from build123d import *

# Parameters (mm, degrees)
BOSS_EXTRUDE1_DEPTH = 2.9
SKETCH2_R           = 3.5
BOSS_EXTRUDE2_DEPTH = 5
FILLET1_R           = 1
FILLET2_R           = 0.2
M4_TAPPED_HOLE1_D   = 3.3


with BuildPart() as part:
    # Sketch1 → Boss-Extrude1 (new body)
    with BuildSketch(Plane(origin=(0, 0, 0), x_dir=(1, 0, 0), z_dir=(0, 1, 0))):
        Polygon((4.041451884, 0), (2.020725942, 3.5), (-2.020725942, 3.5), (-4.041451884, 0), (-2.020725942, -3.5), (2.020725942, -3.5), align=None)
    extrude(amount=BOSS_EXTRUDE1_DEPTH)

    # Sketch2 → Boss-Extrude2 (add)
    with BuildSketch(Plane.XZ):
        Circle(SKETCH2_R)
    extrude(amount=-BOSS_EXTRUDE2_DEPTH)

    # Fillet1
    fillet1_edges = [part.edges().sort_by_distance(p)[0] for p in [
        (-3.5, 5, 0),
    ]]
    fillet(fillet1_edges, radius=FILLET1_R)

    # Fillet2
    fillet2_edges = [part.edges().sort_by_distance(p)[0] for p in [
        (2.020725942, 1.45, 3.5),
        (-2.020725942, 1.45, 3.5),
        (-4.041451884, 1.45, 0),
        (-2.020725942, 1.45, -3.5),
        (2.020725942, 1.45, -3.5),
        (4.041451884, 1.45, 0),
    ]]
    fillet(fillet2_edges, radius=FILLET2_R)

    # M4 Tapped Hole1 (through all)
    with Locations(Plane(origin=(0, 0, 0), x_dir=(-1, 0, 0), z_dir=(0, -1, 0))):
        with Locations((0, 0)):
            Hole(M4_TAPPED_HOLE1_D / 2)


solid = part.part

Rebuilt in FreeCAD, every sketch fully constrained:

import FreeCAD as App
import Part
import Sketcher
Q = App.Units.Quantity


def edges_at(feature, points):
    """Names of the edges that pass closest to the given points."""
    edges = feature.Shape.Edges
    near = lambda p: min(range(len(edges)), key=lambda i: edges[i].distToShape(Part.Vertex(*p))[0])
    return sorted({f"Edge{near(p) + 1}" for p in points})

doc = App.newDocument("Part")
body = doc.addObject("PartDesign::Body", "Body")

# Sketch on XZ plane
sketch1 = body.newObject("Sketcher::SketchObject", "Sketch")
sketch1.AttachmentSupport = (doc.getObject("XZ_Plane"), [""])
sketch1.MapMode = "FlatFace"
sketch1.addGeometry([
    Part.LineSegment(App.Vector(4, 0, 0), App.Vector(2, -3.5, 0)),  # 0
    Part.LineSegment(App.Vector(2, -3.5, 0), App.Vector(-2, -3.5, 0)),  # 1
    Part.LineSegment(App.Vector(-2, -3.5, 0), App.Vector(-4, 0, 0)),  # 2
    Part.LineSegment(App.Vector(-4, 0, 0), App.Vector(-2, 3.5, 0)),  # 3
    Part.LineSegment(App.Vector(-2, 3.5, 0), App.Vector(2, 3.5, 0)),  # 4
    Part.LineSegment(App.Vector(2, 3.5, 0), App.Vector(4, 0, 0)),  # 5
], False)
sketch1.addConstraint([
    Sketcher.Constraint("Coincident", 0, 2, 1, 1),
    Sketcher.Constraint("Coincident", 1, 2, 2, 1),
    Sketcher.Constraint("Coincident", 2, 2, 3, 1),
    Sketcher.Constraint("Coincident", 3, 2, 4, 1),
    Sketcher.Constraint("Coincident", 4, 2, 5, 1),
    Sketcher.Constraint("Coincident", 5, 2, 0, 1),
    Sketcher.Constraint("Horizontal", 1),
    Sketcher.Constraint("Horizontal", 4),
    Sketcher.Constraint("Symmetric", 0, 2, 3, 2, -1, 1),
    Sketcher.Constraint("Symmetric", 2, 2, 5, 2, -1, 1),
    Sketcher.Constraint("PointOnObject", 2, 2, -1),
    Sketcher.Constraint("Parallel", 2, 5),
    Sketcher.Constraint("Vertical", 1, 2, 3, 2),
    Sketcher.Constraint("Angle", 0, Q("-120 deg")),
    Sketcher.Constraint("DistanceY", 1, 2, 3, 2, Q("7 mm")),
    Sketcher.Constraint("DistanceX", 1, 2, 1, 1, Q("4.041452 mm")),
])
pad1 = body.newObject("PartDesign::Pad", "Pad")
pad1.Profile = sketch1
pad1.Length = 2.9
pad1.Reversed = True

# Sketch on XZ plane
sketch2 = body.newObject("Sketcher::SketchObject", "Sketch001")
sketch2.AttachmentSupport = (doc.getObject("XZ_Plane"), [""])
sketch2.MapMode = "FlatFace"
sketch2.addGeometry(Part.Circle(App.Vector(0, 0, 0), App.Vector(0, 0, 1), 3.5), False)
sketch2.addConstraint([
    Sketcher.Constraint("Coincident", 0, 3, -1, 1),
    Sketcher.Constraint("Diameter", 0, Q("7 mm")),
])
pad2 = body.newObject("PartDesign::Pad", "Pad001")
pad2.Profile = sketch2
pad2.Length = 5
pad2.Reversed = True
doc.recompute()

fillet = body.newObject("PartDesign::Fillet", "Fillet")
fillet.Base = (pad2, edges_at(pad2, [(-3.5, 5, 0)]))
fillet.Radius = 1
doc.recompute()

fillet2 = body.newObject("PartDesign::Fillet", "Fillet001")
fillet2.Base = (fillet, edges_at(fillet, [
    (2.021, 1.45, 3.5),
    (-2.021, 1.45, 3.5),
    (-4.041, 1.45, 0),
    (-2.021, 1.45, -3.5),
    (2.021, 1.45, -3.5),
    (4.041, 1.45, 0),
]))
fillet2.Radius = 0.2

# Sketch on XZ plane
sketch3 = body.newObject("Sketcher::SketchObject", "Sketch002")
sketch3.AttachmentSupport = (doc.getObject("XZ_Plane"), [""])
sketch3.MapMode = "FlatFace"
sketch3.addGeometry(Part.Circle(App.Vector(0, 0, 0), App.Vector(0, 0, 1), 1.6), False)
sketch3.addConstraint([
    Sketcher.Constraint("Coincident", 0, 3, -1, 1),
    Sketcher.Constraint("Diameter", 0, Q("3.3 mm")),
])
doc.recompute()
hole = body.newObject("PartDesign::Hole", "Hole")
hole.Profile = sketch3
hole.ThreadType = "None"
hole.Diameter = 3.3
hole.DepthType = "ThroughAll"

doc.recompute()
